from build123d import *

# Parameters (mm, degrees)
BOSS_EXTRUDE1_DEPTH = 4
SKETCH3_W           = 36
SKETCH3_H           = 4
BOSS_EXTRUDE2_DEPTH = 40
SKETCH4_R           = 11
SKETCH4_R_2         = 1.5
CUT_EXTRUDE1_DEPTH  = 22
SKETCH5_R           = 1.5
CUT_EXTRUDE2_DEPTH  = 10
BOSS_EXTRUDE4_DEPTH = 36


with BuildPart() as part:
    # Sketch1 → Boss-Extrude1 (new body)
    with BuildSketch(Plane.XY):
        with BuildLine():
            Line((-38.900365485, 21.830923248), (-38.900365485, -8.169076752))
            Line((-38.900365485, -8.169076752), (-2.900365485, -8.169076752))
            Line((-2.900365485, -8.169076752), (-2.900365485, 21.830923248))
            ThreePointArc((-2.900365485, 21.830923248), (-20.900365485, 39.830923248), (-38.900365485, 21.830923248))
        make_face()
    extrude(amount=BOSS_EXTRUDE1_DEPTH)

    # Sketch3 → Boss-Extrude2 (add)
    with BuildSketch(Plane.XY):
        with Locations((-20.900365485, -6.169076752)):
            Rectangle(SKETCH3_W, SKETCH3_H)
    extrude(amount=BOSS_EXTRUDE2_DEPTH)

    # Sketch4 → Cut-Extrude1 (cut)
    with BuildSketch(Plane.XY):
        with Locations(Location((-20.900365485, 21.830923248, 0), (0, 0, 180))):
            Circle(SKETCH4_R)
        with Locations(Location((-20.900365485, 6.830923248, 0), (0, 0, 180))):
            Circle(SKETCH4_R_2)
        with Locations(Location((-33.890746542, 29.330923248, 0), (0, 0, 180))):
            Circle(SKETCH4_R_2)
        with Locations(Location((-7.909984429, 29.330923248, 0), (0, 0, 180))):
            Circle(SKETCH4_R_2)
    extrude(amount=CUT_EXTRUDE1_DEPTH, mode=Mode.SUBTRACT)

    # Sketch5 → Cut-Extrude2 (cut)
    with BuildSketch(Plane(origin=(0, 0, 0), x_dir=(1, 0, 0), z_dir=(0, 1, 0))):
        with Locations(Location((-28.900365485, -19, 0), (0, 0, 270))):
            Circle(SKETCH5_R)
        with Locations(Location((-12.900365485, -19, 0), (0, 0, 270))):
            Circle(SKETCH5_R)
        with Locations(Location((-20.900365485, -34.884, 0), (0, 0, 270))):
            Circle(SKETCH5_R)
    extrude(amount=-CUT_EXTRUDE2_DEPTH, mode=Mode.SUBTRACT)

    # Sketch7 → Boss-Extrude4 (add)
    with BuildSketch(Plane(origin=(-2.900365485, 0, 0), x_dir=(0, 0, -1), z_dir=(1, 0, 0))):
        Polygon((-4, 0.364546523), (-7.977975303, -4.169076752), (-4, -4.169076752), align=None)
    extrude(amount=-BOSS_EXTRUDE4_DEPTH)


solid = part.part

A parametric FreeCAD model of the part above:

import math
import FreeCAD as App
import Part
import Sketcher
from FreeCAD import Vector

doc = App.newDocument("Part")
body = doc.addObject("PartDesign::Body", "Body")

# Sketch on XY plane
sketch1 = body.newObject("Sketcher::SketchObject", "Sketch")
sketch1.AttachmentSupport = (doc.getObject("XY_Plane"), [""])
sketch1.MapMode = "FlatFace"
sketch1.addGeometry(Part.LineSegment(Vector(-38.900365, 21.830923, 0), Vector(-38.900365, -8.169077, 0)), False)
sketch1.addGeometry(Part.LineSegment(Vector(-38.900365, -8.169077, 0), Vector(-2.900365, -8.169077, 0)), False)
sketch1.addGeometry(Part.LineSegment(Vector(-2.900365, -8.169077, 0), Vector(-2.900365, 21.830923, 0)), False)
sketch1.addGeometry(Part.ArcOfCircle(Part.Circle(Vector(-20.900365, 21.830923, 0), Vector(0, 0, 1), 18), math.radians(0), math.radians(180)), False)
sketch1.addConstraint(Sketcher.Constraint("Coincident", 0, 2, 1, 1))
sketch1.addConstraint(Sketcher.Constraint("Coincident", 1, 2, 2, 1))
sketch1.addConstraint(Sketcher.Constraint("Tangent", 2, 2, 3, 1))
sketch1.addConstraint(Sketcher.Constraint("Tangent", 3, 2, 0, 1))
sketch1.addConstraint(Sketcher.Constraint("Vertical", 0))
sketch1.addConstraint(Sketcher.Constraint("Horizontal", 1))
sketch1.addConstraint(Sketcher.Constraint("Vertical", 2))
sketch1.addConstraint(Sketcher.Constraint("Radius", 3, 18.0))
sketch1.addConstraint(Sketcher.Constraint("DistanceY", 0, 2, 0, 1, 30.0))
sketch1.addConstraint(Sketcher.Constraint("DistanceX", 3, 3, -1, 1, 20.900365))
sketch1.addConstraint(Sketcher.Constraint("DistanceY", -1, 1, 3, 3, 21.830923))
pad1 = body.newObject("PartDesign::Pad", "Pad")
pad1.Profile = sketch1
pad1.Length = 4

# Sketch on XY plane
sketch2 = body.newObject("Sketcher::SketchObject", "Sketch001")
sketch2.AttachmentSupport = (doc.getObject("XY_Plane"), [""])
sketch2.MapMode = "FlatFace"
sketch2.addGeometry(Part.LineSegment(Vector(-38.900365, -4.169077, 0), Vector(-38.900365, -8.169077, 0)), False)
sketch2.addGeometry(Part.LineSegment(Vector(-38.900365, -8.169077, 0), Vector(-2.900365, -8.169077, 0)), False)
sketch2.addGeometry(Part.LineSegment(Vector(-2.900365, -8.169077, 0), Vector(-2.900365, -4.169077, 0)), False)
sketch2.addGeometry(Part.LineSegment(Vector(-2.900365, -4.169077, 0), Vector(-38.900365, -4.169077, 0)), False)
sketch2.addConstraint(Sketcher.Constraint("Coincident", 0, 2, 1, 1))
sketch2.addConstraint(Sketcher.Constraint("Coincident", 1, 2, 2, 1))
sketch2.addConstraint(Sketcher.Constraint("Coincident", 2, 2, 3, 1))
sketch2.addConstraint(Sketcher.Constraint("Coincident", 3, 2, 0, 1))
sketch2.addConstraint(Sketcher.Constraint("Vertical", 0))
sketch2.addConstraint(Sketcher.Constraint("Horizontal", 1))
sketch2.addConstraint(Sketcher.Constraint("Vertical", 2))
sketch2.addConstraint(Sketcher.Constraint("Horizontal", 3))
sketch2.addConstraint(Sketcher.Constraint("DistanceX", 1, 1, 1, 2, 36.0))
sketch2.addConstraint(Sketcher.Constraint("DistanceY", 0, 2, 0, 1, 4.0))
sketch2.addConstraint(Sketcher.Constraint("DistanceX", 0, 2, -1, 1, 38.900365))
sketch2.addConstraint(Sketcher.Constraint("DistanceY", 0, 2, -1, 1, 8.169077))
pad2 = body.newObject("PartDesign::Pad", "Pad001")
pad2.Profile = sketch2
pad2.Length = 40

# Sketch on XY plane
sketch3 = body.newObject("Sketcher::SketchObject", "Sketch002")
sketch3.AttachmentSupport = (doc.getObject("XY_Plane"), [""])
sketch3.MapMode = "FlatFace"
sketch3.addGeometry(Part.Circle(Vector(-20.900365, 21.830923, 0), Vector(0, 0, 1), 11), False)
sketch3.addGeometry(Part.Circle(Vector(-20.900365, 6.830923, 0), Vector(0, 0, 1), 1.5), False)
sketch3.addGeometry(Part.Circle(Vector(-33.890747, 29.330923, 0), Vector(0, 0, 1), 1.5), False)
sketch3.addGeometry(Part.Circle(Vector(-7.909984, 29.330923, 0), Vector(0, 0, 1), 1.5), False)
sketch3.addConstraint(Sketcher.Constraint("Equal", 1, 2))
sketch3.addConstraint(Sketcher.Constraint("Equal", 2, 3))
sketch3.addConstraint(Sketcher.Constraint("Horizontal", 2, 3, 3, 3))
sketch3.addConstraint(Sketcher.Constraint("Vertical", 0, 3, 1, 3))
sketch3.addConstraint(Sketcher.Constraint("Diameter", 0, 22.0))
sketch3.addConstraint(Sketcher.Constraint("Diameter", 1, 3.0))
sketch3.addConstraint(Sketcher.Constraint("DistanceY", 1, 3, 0, 3, 15.0))
sketch3.addConstraint(Sketcher.Constraint("DistanceY", 0, 3, 2, 3, 7.5))
sketch3.addConstraint(Sketcher.Constraint("DistanceX", 2, 3, 0, 3, 12.990381))
sketch3.addConstraint(Sketcher.Constraint("DistanceX", 0, 3, 3, 3, 12.990381))
sketch3.addConstraint(Sketcher.Constraint("DistanceX", 0, 3, -1, 1, 20.900365))
sketch3.addConstraint(Sketcher.Constraint("DistanceY", -1, 1, 0, 3, 21.830923))
pocket1 = body.newObject("PartDesign::Pocket", "Pocket")
pocket1.Profile = sketch3
pocket1.Length = 22
pocket1.Reversed = True

# Sketch on XZ plane
sketch4 = body.newObject("Sketcher::SketchObject", "Sketch003")
sketch4.AttachmentSupport = (doc.getObject("XZ_Plane"), [""])
sketch4.MapMode = "FlatFace"
sketch4.addGeometry(Part.Circle(Vector(-28.900365, 19, 0), Vector(0, 0, 1), 1.5), False)
sketch4.addGeometry(Part.Circle(Vector(-12.900365, 19, 0), Vector(0, 0, 1), 1.5), False)
sketch4.addGeometry(Part.Circle(Vector(-20.900365, 34.884, 0), Vector(0, 0, 1), 1.5), False)
sketch4.addConstraint(Sketcher.Constraint("Equal", 0, 1))
sketch4.addConstraint(Sketcher.Constraint("Equal", 1, 2))
sketch4.addConstraint(Sketcher.Constraint("Horizontal", 0, 3, 1, 3))
sketch4.addConstraint(Sketcher.Constraint("Diameter", 0, 3.0))
sketch4.addConstraint(Sketcher.Constraint("DistanceY", -1, 1, 0, 3, 19.0))
sketch4.addConstraint(Sketcher.Constraint("DistanceX", 0, 3, 1, 3, 16.0))
sketch4.addConstraint(Sketcher.Constraint("DistanceX", 0, 3, 2, 3, 8.0))
sketch4.addConstraint(Sketcher.Constraint("DistanceY", -1, 1, 2, 3, 34.884))
sketch4.addConstraint(Sketcher.Constraint("DistanceX", 0, 3, -1, 1, 28.900365))
pocket2 = body.newObject("PartDesign::Pocket", "Pocket001")
pocket2.Profile = sketch4
pocket2.Length = 10
pocket2.Reversed = True

# Sketch on YZ plane
sketch5 = body.newObject("Sketcher::SketchObject", "Sketch004")
sketch5.AttachmentSupport = (doc.getObject("YZ_Plane"), [""])
sketch5.MapMode = "FlatFace"
sketch5.AttachmentOffset = App.Placement(Vector(0, 0, -2.900365), App.Rotation())
sketch5.addGeometry(Part.LineSegment(Vector(0.364547, 4, 0), Vector(-4.169077, 7.977975, 0)), False)
sketch5.addGeometry(Part.LineSegment(Vector(-4.169077, 7.977975, 0), Vector(-4.169077, 4, 0)), False)
sketch5.addGeometry(Part.LineSegment(Vector(-4.169077, 4, 0), Vector(0.364547, 4, 0)), False)
sketch5.addConstraint(Sketcher.Constraint("Coincident", 0, 2, 1, 1))
sketch5.addConstraint(Sketcher.Constraint("Coincident", 1, 2, 2, 1))
sketch5.addConstraint(Sketcher.Constraint("Coincident", 2, 2, 0, 1))
sketch5.addConstraint(Sketcher.Constraint("Vertical", 1))
sketch5.addConstraint(Sketcher.Constraint("Horizontal", 2))
sketch5.addConstraint(Sketcher.Constraint("DistanceY", -1, 1, 1, 2, 4.0))
sketch5.addConstraint(Sketcher.Constraint("Distance", 0, 6.03142))
sketch5.addConstraint(Sketcher.Constraint("DistanceX", 2, 1, 2, 2, 4.533623))
sketch5.addConstraint(Sketcher.Constraint("DistanceX", 0, 2, -1, 1, 4.169077))
pad3 = body.newObject("PartDesign::Pad", "Pad002")
pad3.Profile = sketch5
pad3.Length = 36
pad3.Reversed = True

doc.recompute()
